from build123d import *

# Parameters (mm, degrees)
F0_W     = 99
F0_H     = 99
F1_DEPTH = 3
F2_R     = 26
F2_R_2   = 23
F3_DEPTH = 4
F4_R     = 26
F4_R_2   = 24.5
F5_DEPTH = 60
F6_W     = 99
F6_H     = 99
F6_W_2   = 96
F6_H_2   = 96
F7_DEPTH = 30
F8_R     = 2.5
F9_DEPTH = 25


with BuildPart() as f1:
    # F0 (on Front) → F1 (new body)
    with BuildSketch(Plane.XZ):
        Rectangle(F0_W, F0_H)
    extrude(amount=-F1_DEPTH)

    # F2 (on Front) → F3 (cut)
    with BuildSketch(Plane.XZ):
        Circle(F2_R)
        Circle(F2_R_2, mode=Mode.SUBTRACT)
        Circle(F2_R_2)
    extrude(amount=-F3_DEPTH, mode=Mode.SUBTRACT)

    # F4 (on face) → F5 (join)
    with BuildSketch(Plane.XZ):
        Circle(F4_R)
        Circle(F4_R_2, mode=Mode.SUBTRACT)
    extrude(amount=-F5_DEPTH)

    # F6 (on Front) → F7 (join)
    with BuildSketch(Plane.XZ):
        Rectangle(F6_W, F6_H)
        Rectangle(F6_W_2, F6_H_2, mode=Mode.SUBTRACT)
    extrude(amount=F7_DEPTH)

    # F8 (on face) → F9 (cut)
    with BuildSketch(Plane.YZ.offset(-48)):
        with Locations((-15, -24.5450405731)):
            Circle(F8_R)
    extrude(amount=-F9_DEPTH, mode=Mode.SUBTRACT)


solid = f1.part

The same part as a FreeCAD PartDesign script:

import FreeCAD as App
import Part
import Sketcher
Q = App.Units.Quantity


def add_polygon(sketch, points):
    """Adds a closed chain of lines whose ends are joined by coincident constraints."""
    first, n = sketch.GeometryCount, len(points)
    for a, b in zip(points, points[1:] + points[:1]):
        sketch.addGeometry(Part.LineSegment(App.Vector(*a, 0), App.Vector(*b, 0)), False)
    for i in range(n):
        sketch.addConstraint(Sketcher.Constraint("Coincident", first + i, 2, first + (i + 1) % n, 1))

doc = App.newDocument("Part")
params = doc.addObject("Spreadsheet::Sheet", "Params")
for row, (alias, value) in enumerate([
    ("sketch1_width", "99 mm"),
    ("pad1_length", "3 mm"),
    ("sketch2_diameter", "52 mm"),
    ("pocket1_length", "4 mm"),
    ("sketch3_diameter", "52 mm"),
    ("sketch3_diameter2", "49 mm"),
    ("pad2_length", "60 mm"),
    ("sketch4_width", "99 mm"),
    ("sketch4_width2", "96 mm"),
    ("pad3_length", "30 mm"),
    ("sketch5_diameter", "5 mm"),
    ("pocket2_length", "25 mm"),
], start=1):
    params.set(f"A{row}", alias)
    params.set(f"B{row}", "=" + value)
    params.setAlias(f"B{row}", alias)

body = doc.addObject("PartDesign::Body", "Body")

# Sketch on XZ plane
sketch1 = body.newObject("Sketcher::SketchObject", "Sketch")
sketch1.AttachmentSupport = (doc.getObject("XZ_Plane"), [""])
sketch1.MapMode = "FlatFace"
add_polygon(sketch1, [(-50, 50), (-50, -50), (50, -50), (50, 50)])  # lines 0-3
sketch1.addConstraint([
    Sketcher.Constraint("Vertical", 0),
    Sketcher.Constraint("Horizontal", 1),
    Sketcher.Constraint("Vertical", 2),
    Sketcher.Constraint("Horizontal", 3),
    Sketcher.Constraint("Symmetric", 0, 2, 2, 2, -1, 1),
    Sketcher.Constraint("Equal", 3, 0),
    Sketcher.Constraint("DistanceX", 1, 1, 1, 2, Q("99 mm")),
])
sketch1.setExpression("Constraints[10]", "Params.sketch1_width")
pad1 = body.newObject("PartDesign::Pad", "Pad")
pad1.Profile = sketch1
pad1.setExpression("Length", "Params.pad1_length")
pad1.Reversed = True

# Sketch on XZ plane
sketch2 = body.newObject("Sketcher::SketchObject", "Sketch001")
sketch2.AttachmentSupport = (doc.getObject("XZ_Plane"), [""])
sketch2.MapMode = "FlatFace"
sketch2.addGeometry(Part.Circle(App.Vector(0, 0, 0), App.Vector(0, 0, 1), 26), False)
sketch2.addConstraint([
    Sketcher.Constraint("Coincident", 0, 3, -1, 1),
    Sketcher.Constraint("Diameter", 0, Q("52 mm")),
])
sketch2.setExpression("Constraints[1]", "Params.sketch2_diameter")
pocket1 = body.newObject("PartDesign::Pocket", "Pocket")
pocket1.Profile = sketch2
pocket1.setExpression("Length", "Params.pocket1_length")

# Sketch on XZ plane
sketch3 = body.newObject("Sketcher::SketchObject", "Sketch002")
sketch3.AttachmentSupport = (doc.getObject("XZ_Plane"), [""])
sketch3.MapMode = "FlatFace"
sketch3.addGeometry([
    Part.Circle(App.Vector(0, 0, 0), App.Vector(0, 0, 1), 26),
    Part.Circle(App.Vector(0, 0, 0), App.Vector(0, 0, 1), 24),
], False)
sketch3.addConstraint([
    Sketcher.Constraint("Coincident", 0, 3, -1, 1),
    Sketcher.Constraint("Coincident", 1, 3, -1, 1),
    Sketcher.Constraint("Diameter", 0, Q("52 mm")),
    Sketcher.Constraint("Diameter", 1, Q("49 mm")),
])
sketch3.setExpression("Constraints[2]", "Params.sketch3_diameter")
sketch3.setExpression("Constraints[3]", "Params.sketch3_diameter2")
pad2 = body.newObject("PartDesign::Pad", "Pad001")
pad2.Profile = sketch3
pad2.setExpression("Length", "Params.pad2_length")
pad2.Reversed = True

# Sketch on XZ plane
sketch4 = body.newObject("Sketcher::SketchObject", "Sketch003")
sketch4.AttachmentSupport = (doc.getObject("XZ_Plane"), [""])
sketch4.MapMode = "FlatFace"
add_polygon(sketch4, [(-50, 50), (-50, -50), (50, -50), (50, 50)])  # lines 0-3
add_polygon(sketch4, [(48, -48), (-48, -48), (-48, 48), (48, 48)])  # lines 4-7
sketch4.addConstraint([
    Sketcher.Constraint("Vertical", 0),
    Sketcher.Constraint("Horizontal", 1),
    Sketcher.Constraint("Vertical", 2),
    Sketcher.Constraint("Horizontal", 3),
    Sketcher.Constraint("Horizontal", 4),
    Sketcher.Constraint("Vertical", 5),
    Sketcher.Constraint("Horizontal", 6),
    Sketcher.Constraint("Vertical", 7),
    Sketcher.Constraint("Symmetric", 0, 2, 2, 2, -1, 1),
    Sketcher.Constraint("Symmetric", 4, 2, 6, 2, -1, 1),
    Sketcher.Constraint("Equal", 3, 0),
    Sketcher.Constraint("Equal", 6, 5),
    Sketcher.Constraint("DistanceX", 1, 1, 1, 2, Q("99 mm")),
    Sketcher.Constraint("DistanceX", 4, 2, 4, 1, Q("96 mm")),
])
sketch4.setExpression("Constraints[20]", "Params.sketch4_width")
sketch4.setExpression("Constraints[21]", "Params.sketch4_width2")
pad3 = body.newObject("PartDesign::Pad", "Pad002")
pad3.Profile = sketch4
pad3.setExpression("Length", "Params.pad3_length")

# Sketch on YZ plane
sketch5 = body.newObject("Sketcher::SketchObject", "Sketch004")
sketch5.AttachmentSupport = (doc.getObject("YZ_Plane"), [""])
sketch5.MapMode = "FlatFace"
sketch5.AttachmentOffset = App.Placement(App.Vector(0, 0, -48), App.Rotation())
sketch5.addGeometry(Part.Circle(App.Vector(-15, -24.5, 0), App.Vector(0, 0, 1), 2.5), False)
sketch5.addConstraint([
    Sketcher.Constraint("Diameter", 0, Q("5 mm")),
    Sketcher.Constraint("DistanceX", 0, 3, -1, 1, Q("15 mm")),
    Sketcher.Constraint("DistanceY", 0, 3, -1, 1, Q("24.545041 mm")),
])
sketch5.setExpression("Constraints[0]", "Params.sketch5_diameter")
pocket2 = body.newObject("PartDesign::Pocket", "Pocket001")
pocket2.Profile = sketch5
pocket2.setExpression("Length", "Params.pocket2_length")

doc.recompute()
